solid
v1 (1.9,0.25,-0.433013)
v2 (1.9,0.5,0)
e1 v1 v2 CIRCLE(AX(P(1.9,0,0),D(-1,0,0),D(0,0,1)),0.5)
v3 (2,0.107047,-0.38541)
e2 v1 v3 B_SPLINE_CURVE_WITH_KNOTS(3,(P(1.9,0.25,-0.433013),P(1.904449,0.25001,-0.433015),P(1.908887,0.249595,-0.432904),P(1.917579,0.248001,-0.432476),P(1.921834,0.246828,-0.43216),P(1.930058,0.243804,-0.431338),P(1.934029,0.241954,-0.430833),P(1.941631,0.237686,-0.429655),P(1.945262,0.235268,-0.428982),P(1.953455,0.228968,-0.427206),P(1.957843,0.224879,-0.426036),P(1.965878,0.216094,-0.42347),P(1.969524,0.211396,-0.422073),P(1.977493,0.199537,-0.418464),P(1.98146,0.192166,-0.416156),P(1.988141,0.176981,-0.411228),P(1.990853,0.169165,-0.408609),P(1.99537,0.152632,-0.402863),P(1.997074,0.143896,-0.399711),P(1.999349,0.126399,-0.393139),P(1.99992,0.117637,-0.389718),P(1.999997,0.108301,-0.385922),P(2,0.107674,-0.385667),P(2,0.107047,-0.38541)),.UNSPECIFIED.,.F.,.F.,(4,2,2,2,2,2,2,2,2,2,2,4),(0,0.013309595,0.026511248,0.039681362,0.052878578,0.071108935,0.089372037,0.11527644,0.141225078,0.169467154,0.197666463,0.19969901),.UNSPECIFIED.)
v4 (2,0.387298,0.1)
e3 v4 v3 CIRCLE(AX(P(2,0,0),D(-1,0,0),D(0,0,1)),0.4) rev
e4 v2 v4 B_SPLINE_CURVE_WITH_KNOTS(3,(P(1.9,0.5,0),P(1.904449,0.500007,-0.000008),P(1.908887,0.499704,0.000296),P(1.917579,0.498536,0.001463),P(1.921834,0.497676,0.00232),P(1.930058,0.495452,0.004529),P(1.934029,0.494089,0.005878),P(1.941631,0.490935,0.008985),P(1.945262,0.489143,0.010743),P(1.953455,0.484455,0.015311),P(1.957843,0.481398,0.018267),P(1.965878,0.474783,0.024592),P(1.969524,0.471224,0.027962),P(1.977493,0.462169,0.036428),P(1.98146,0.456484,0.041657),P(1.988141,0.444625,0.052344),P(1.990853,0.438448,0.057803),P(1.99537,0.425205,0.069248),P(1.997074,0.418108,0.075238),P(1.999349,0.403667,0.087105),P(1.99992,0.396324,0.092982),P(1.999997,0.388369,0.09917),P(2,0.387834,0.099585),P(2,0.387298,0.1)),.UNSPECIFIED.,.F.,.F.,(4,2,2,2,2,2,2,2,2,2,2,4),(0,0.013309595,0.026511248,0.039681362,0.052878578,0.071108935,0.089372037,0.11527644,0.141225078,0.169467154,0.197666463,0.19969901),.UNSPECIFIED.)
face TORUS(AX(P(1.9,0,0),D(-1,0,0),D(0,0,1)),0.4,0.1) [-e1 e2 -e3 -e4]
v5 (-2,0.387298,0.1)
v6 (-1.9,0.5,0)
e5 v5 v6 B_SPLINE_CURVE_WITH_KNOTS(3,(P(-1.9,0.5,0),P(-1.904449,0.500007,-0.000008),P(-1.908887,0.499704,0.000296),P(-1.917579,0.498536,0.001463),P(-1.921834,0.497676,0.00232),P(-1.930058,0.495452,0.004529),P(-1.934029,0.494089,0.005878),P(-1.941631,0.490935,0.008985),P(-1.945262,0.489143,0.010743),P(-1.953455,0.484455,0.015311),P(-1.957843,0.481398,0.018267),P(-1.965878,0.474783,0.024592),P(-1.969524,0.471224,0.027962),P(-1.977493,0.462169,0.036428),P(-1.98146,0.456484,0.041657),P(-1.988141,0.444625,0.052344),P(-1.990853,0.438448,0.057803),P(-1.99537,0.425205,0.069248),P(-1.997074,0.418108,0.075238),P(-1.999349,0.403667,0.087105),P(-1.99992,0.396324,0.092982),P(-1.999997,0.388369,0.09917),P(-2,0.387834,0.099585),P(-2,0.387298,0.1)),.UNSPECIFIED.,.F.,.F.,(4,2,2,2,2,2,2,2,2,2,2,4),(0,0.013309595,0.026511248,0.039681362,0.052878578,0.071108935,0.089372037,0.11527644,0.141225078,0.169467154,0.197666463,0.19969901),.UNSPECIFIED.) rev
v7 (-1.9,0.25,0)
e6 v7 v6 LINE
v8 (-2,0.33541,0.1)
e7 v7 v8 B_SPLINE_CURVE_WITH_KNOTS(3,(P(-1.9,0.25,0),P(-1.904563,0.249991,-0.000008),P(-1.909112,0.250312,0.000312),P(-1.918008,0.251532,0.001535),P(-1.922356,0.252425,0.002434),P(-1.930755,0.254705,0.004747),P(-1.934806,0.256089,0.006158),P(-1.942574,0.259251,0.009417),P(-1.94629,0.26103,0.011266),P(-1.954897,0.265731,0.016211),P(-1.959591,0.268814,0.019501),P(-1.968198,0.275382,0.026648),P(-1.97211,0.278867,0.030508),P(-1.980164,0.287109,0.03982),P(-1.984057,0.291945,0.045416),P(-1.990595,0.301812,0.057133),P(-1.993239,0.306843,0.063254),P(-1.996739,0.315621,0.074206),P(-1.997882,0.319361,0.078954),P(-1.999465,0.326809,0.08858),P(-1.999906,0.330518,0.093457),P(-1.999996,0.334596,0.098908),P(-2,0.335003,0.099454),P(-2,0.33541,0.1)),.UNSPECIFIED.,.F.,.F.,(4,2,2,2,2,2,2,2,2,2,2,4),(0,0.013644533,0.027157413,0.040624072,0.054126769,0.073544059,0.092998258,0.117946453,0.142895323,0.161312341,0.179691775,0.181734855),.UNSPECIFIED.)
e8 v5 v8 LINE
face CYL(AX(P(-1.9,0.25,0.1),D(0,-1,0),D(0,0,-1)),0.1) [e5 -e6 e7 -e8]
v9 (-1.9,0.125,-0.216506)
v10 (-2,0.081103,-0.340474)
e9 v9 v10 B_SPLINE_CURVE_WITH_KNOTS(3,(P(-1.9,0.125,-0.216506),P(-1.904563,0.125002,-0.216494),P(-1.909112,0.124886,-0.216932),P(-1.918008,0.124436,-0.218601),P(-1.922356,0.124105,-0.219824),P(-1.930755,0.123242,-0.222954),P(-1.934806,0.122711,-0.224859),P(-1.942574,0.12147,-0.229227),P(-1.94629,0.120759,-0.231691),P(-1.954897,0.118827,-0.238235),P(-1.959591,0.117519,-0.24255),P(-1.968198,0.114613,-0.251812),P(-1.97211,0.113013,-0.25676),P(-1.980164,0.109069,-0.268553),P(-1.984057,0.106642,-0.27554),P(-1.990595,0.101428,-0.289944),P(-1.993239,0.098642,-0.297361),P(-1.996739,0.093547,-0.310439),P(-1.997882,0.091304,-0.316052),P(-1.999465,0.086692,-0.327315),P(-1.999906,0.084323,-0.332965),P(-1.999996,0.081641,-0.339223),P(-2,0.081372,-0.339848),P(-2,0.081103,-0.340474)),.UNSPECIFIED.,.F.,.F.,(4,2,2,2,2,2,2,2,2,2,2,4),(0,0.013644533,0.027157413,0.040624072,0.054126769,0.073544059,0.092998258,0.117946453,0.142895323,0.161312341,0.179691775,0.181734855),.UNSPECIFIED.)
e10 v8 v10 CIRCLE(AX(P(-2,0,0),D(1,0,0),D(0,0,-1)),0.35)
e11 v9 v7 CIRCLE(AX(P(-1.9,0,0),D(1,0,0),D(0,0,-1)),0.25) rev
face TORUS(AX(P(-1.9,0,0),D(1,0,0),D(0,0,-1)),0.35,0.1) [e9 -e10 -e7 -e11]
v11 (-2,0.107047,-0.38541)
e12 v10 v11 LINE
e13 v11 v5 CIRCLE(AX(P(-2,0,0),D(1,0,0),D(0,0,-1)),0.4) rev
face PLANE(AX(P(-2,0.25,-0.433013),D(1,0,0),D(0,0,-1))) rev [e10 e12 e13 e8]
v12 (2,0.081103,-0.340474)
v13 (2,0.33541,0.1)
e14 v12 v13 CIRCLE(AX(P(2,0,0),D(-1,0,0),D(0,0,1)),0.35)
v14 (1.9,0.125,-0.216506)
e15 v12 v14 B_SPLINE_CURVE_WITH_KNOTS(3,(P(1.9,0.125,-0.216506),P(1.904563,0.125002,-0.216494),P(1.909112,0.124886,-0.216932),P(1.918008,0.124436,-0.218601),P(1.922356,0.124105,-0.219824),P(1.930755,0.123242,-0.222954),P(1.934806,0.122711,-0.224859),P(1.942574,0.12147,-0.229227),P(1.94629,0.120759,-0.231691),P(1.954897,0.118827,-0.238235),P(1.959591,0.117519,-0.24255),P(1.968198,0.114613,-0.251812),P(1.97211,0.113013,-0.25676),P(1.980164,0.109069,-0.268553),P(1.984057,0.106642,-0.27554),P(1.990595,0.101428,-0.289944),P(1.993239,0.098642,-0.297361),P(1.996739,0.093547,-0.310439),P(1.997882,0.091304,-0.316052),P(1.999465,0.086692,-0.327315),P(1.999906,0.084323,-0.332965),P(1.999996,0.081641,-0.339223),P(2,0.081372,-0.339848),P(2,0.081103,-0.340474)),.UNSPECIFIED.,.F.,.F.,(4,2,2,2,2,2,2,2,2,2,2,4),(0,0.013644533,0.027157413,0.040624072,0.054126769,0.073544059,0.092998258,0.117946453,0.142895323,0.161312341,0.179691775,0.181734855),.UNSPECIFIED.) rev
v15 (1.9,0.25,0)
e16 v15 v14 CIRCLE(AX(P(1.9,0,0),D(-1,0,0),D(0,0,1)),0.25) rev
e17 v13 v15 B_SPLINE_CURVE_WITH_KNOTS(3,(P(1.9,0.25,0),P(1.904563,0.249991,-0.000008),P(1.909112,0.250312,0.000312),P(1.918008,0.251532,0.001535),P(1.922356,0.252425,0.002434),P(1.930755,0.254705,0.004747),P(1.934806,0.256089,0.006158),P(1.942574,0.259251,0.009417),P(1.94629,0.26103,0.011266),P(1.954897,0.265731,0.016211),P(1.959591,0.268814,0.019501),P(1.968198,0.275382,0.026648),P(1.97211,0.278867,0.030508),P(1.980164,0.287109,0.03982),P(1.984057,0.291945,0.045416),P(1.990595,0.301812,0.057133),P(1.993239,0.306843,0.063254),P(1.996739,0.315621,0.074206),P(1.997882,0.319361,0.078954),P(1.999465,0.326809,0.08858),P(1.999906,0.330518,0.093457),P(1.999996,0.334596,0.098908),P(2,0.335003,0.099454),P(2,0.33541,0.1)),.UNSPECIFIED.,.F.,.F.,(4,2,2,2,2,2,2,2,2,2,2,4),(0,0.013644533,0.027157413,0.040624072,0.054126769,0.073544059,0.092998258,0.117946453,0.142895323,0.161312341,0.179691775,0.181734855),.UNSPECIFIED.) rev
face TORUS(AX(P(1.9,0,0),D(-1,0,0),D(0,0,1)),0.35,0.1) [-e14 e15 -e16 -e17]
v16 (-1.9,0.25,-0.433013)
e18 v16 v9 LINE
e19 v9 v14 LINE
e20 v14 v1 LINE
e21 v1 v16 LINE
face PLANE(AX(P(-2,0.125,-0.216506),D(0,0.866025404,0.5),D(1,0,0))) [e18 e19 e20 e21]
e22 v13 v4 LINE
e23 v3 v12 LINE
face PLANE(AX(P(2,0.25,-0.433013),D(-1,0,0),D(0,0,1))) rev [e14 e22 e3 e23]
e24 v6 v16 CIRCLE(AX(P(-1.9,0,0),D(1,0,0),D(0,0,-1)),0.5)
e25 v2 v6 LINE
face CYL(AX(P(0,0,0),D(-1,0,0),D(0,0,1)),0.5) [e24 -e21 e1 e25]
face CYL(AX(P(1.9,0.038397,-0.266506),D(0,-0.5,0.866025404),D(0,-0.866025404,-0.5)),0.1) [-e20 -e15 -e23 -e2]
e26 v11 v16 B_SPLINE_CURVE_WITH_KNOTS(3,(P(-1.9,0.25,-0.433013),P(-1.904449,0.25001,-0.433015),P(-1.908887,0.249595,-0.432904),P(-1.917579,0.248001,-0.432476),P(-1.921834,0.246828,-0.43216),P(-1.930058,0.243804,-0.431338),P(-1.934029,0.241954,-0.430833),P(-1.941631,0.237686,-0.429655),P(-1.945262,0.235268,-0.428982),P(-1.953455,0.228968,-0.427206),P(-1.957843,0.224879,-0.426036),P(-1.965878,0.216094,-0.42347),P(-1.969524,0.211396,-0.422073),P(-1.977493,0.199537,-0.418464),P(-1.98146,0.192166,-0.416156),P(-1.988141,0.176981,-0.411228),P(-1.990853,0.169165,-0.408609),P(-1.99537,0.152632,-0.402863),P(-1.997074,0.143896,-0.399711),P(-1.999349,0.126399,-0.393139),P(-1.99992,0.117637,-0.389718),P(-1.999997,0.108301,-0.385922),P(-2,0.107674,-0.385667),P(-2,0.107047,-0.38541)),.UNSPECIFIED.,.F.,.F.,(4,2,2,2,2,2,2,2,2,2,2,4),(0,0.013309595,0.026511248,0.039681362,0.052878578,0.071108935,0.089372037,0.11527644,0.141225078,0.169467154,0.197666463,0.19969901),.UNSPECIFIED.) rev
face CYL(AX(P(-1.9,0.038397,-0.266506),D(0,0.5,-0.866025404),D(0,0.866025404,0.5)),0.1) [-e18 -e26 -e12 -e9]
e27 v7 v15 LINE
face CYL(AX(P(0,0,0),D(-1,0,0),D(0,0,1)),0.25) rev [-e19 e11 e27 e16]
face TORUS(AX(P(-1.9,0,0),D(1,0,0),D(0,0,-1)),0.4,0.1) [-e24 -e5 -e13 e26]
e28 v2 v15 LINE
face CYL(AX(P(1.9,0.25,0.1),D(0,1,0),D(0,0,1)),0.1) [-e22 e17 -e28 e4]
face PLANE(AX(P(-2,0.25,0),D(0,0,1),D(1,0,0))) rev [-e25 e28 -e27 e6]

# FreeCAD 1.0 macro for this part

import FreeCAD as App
import Part
import Sketcher
Q = App.Units.Quantity


def edges_at(feature, points):
    """Names of the edges that pass closest to the given points."""
    edges = feature.Shape.Edges
    near = lambda p: min(range(len(edges)), key=lambda i: edges[i].distToShape(Part.Vertex(*p))[0])
    return sorted({f"Edge{near(p) + 1}" for p in points})


def add_polygon(sketch, points):
    """Adds a closed chain of lines whose ends are joined by coincident constraints."""
    first, n = sketch.GeometryCount, len(points)
    for a, b in zip(points, points[1:] + points[:1]):
        sketch.addGeometry(Part.LineSegment(App.Vector(*a, 0), App.Vector(*b, 0)), False)
    for i in range(n):
        sketch.addConstraint(Sketcher.Constraint("Coincident", first + i, 2, first + (i + 1) % n, 1))

doc = App.newDocument("Part")
body = doc.addObject("PartDesign::Body", "Body")

# Sketch on XY plane
sketch1 = body.newObject("Sketcher::SketchObject", "Sketch")
sketch1.AttachmentSupport = (doc.getObject("XY_Plane"), [""])
sketch1.MapMode = "FlatFace"
add_polygon(sketch1, [(-2, 0.5), (-2, 0.25), (2, 0.25), (2, 0.5)])  # lines 0-3
sketch1.addConstraint([
    Sketcher.Constraint("Vertical", 0),
    Sketcher.Constraint("Horizontal", 1),
    Sketcher.Constraint("Vertical", 2),
    Sketcher.Constraint("Horizontal", 3),
    Sketcher.Constraint("DistanceX", 1, 1, 1, 2, Q("4 mm")),
    Sketcher.Constraint("DistanceX", 0, 2, -1, 1, Q("2 mm")),
    Sketcher.Constraint("DistanceY", 0, 2, 0, 1, Q("0.25 mm")),
    Sketcher.Constraint("DistanceY", -1, 1, 2, 2, Q("0.5 mm")),
])
revolution = body.newObject("PartDesign::Revolution", "Revolution")
revolution.Profile = sketch1
revolution.ReferenceAxis = (sketch1, ["H_Axis"])
revolution.Angle = 300
doc.recompute()

fillet = body.newObject("PartDesign::Fillet", "Fillet")
fillet.Base = (revolution, edges_at(revolution, [
    (2, 0.188, -0.325),
    (-2, 0.375, 0),
    (-2, 0.188, -0.325),
    (2, 0.375, 0),
    (-2, -0.433, 0.25),
    (2, -0.433, 0.25),
    (2, -0.217, 0.125),
    (-2, -0.217, 0.125),
]))
fillet.Radius = 0.1

doc.recompute()
